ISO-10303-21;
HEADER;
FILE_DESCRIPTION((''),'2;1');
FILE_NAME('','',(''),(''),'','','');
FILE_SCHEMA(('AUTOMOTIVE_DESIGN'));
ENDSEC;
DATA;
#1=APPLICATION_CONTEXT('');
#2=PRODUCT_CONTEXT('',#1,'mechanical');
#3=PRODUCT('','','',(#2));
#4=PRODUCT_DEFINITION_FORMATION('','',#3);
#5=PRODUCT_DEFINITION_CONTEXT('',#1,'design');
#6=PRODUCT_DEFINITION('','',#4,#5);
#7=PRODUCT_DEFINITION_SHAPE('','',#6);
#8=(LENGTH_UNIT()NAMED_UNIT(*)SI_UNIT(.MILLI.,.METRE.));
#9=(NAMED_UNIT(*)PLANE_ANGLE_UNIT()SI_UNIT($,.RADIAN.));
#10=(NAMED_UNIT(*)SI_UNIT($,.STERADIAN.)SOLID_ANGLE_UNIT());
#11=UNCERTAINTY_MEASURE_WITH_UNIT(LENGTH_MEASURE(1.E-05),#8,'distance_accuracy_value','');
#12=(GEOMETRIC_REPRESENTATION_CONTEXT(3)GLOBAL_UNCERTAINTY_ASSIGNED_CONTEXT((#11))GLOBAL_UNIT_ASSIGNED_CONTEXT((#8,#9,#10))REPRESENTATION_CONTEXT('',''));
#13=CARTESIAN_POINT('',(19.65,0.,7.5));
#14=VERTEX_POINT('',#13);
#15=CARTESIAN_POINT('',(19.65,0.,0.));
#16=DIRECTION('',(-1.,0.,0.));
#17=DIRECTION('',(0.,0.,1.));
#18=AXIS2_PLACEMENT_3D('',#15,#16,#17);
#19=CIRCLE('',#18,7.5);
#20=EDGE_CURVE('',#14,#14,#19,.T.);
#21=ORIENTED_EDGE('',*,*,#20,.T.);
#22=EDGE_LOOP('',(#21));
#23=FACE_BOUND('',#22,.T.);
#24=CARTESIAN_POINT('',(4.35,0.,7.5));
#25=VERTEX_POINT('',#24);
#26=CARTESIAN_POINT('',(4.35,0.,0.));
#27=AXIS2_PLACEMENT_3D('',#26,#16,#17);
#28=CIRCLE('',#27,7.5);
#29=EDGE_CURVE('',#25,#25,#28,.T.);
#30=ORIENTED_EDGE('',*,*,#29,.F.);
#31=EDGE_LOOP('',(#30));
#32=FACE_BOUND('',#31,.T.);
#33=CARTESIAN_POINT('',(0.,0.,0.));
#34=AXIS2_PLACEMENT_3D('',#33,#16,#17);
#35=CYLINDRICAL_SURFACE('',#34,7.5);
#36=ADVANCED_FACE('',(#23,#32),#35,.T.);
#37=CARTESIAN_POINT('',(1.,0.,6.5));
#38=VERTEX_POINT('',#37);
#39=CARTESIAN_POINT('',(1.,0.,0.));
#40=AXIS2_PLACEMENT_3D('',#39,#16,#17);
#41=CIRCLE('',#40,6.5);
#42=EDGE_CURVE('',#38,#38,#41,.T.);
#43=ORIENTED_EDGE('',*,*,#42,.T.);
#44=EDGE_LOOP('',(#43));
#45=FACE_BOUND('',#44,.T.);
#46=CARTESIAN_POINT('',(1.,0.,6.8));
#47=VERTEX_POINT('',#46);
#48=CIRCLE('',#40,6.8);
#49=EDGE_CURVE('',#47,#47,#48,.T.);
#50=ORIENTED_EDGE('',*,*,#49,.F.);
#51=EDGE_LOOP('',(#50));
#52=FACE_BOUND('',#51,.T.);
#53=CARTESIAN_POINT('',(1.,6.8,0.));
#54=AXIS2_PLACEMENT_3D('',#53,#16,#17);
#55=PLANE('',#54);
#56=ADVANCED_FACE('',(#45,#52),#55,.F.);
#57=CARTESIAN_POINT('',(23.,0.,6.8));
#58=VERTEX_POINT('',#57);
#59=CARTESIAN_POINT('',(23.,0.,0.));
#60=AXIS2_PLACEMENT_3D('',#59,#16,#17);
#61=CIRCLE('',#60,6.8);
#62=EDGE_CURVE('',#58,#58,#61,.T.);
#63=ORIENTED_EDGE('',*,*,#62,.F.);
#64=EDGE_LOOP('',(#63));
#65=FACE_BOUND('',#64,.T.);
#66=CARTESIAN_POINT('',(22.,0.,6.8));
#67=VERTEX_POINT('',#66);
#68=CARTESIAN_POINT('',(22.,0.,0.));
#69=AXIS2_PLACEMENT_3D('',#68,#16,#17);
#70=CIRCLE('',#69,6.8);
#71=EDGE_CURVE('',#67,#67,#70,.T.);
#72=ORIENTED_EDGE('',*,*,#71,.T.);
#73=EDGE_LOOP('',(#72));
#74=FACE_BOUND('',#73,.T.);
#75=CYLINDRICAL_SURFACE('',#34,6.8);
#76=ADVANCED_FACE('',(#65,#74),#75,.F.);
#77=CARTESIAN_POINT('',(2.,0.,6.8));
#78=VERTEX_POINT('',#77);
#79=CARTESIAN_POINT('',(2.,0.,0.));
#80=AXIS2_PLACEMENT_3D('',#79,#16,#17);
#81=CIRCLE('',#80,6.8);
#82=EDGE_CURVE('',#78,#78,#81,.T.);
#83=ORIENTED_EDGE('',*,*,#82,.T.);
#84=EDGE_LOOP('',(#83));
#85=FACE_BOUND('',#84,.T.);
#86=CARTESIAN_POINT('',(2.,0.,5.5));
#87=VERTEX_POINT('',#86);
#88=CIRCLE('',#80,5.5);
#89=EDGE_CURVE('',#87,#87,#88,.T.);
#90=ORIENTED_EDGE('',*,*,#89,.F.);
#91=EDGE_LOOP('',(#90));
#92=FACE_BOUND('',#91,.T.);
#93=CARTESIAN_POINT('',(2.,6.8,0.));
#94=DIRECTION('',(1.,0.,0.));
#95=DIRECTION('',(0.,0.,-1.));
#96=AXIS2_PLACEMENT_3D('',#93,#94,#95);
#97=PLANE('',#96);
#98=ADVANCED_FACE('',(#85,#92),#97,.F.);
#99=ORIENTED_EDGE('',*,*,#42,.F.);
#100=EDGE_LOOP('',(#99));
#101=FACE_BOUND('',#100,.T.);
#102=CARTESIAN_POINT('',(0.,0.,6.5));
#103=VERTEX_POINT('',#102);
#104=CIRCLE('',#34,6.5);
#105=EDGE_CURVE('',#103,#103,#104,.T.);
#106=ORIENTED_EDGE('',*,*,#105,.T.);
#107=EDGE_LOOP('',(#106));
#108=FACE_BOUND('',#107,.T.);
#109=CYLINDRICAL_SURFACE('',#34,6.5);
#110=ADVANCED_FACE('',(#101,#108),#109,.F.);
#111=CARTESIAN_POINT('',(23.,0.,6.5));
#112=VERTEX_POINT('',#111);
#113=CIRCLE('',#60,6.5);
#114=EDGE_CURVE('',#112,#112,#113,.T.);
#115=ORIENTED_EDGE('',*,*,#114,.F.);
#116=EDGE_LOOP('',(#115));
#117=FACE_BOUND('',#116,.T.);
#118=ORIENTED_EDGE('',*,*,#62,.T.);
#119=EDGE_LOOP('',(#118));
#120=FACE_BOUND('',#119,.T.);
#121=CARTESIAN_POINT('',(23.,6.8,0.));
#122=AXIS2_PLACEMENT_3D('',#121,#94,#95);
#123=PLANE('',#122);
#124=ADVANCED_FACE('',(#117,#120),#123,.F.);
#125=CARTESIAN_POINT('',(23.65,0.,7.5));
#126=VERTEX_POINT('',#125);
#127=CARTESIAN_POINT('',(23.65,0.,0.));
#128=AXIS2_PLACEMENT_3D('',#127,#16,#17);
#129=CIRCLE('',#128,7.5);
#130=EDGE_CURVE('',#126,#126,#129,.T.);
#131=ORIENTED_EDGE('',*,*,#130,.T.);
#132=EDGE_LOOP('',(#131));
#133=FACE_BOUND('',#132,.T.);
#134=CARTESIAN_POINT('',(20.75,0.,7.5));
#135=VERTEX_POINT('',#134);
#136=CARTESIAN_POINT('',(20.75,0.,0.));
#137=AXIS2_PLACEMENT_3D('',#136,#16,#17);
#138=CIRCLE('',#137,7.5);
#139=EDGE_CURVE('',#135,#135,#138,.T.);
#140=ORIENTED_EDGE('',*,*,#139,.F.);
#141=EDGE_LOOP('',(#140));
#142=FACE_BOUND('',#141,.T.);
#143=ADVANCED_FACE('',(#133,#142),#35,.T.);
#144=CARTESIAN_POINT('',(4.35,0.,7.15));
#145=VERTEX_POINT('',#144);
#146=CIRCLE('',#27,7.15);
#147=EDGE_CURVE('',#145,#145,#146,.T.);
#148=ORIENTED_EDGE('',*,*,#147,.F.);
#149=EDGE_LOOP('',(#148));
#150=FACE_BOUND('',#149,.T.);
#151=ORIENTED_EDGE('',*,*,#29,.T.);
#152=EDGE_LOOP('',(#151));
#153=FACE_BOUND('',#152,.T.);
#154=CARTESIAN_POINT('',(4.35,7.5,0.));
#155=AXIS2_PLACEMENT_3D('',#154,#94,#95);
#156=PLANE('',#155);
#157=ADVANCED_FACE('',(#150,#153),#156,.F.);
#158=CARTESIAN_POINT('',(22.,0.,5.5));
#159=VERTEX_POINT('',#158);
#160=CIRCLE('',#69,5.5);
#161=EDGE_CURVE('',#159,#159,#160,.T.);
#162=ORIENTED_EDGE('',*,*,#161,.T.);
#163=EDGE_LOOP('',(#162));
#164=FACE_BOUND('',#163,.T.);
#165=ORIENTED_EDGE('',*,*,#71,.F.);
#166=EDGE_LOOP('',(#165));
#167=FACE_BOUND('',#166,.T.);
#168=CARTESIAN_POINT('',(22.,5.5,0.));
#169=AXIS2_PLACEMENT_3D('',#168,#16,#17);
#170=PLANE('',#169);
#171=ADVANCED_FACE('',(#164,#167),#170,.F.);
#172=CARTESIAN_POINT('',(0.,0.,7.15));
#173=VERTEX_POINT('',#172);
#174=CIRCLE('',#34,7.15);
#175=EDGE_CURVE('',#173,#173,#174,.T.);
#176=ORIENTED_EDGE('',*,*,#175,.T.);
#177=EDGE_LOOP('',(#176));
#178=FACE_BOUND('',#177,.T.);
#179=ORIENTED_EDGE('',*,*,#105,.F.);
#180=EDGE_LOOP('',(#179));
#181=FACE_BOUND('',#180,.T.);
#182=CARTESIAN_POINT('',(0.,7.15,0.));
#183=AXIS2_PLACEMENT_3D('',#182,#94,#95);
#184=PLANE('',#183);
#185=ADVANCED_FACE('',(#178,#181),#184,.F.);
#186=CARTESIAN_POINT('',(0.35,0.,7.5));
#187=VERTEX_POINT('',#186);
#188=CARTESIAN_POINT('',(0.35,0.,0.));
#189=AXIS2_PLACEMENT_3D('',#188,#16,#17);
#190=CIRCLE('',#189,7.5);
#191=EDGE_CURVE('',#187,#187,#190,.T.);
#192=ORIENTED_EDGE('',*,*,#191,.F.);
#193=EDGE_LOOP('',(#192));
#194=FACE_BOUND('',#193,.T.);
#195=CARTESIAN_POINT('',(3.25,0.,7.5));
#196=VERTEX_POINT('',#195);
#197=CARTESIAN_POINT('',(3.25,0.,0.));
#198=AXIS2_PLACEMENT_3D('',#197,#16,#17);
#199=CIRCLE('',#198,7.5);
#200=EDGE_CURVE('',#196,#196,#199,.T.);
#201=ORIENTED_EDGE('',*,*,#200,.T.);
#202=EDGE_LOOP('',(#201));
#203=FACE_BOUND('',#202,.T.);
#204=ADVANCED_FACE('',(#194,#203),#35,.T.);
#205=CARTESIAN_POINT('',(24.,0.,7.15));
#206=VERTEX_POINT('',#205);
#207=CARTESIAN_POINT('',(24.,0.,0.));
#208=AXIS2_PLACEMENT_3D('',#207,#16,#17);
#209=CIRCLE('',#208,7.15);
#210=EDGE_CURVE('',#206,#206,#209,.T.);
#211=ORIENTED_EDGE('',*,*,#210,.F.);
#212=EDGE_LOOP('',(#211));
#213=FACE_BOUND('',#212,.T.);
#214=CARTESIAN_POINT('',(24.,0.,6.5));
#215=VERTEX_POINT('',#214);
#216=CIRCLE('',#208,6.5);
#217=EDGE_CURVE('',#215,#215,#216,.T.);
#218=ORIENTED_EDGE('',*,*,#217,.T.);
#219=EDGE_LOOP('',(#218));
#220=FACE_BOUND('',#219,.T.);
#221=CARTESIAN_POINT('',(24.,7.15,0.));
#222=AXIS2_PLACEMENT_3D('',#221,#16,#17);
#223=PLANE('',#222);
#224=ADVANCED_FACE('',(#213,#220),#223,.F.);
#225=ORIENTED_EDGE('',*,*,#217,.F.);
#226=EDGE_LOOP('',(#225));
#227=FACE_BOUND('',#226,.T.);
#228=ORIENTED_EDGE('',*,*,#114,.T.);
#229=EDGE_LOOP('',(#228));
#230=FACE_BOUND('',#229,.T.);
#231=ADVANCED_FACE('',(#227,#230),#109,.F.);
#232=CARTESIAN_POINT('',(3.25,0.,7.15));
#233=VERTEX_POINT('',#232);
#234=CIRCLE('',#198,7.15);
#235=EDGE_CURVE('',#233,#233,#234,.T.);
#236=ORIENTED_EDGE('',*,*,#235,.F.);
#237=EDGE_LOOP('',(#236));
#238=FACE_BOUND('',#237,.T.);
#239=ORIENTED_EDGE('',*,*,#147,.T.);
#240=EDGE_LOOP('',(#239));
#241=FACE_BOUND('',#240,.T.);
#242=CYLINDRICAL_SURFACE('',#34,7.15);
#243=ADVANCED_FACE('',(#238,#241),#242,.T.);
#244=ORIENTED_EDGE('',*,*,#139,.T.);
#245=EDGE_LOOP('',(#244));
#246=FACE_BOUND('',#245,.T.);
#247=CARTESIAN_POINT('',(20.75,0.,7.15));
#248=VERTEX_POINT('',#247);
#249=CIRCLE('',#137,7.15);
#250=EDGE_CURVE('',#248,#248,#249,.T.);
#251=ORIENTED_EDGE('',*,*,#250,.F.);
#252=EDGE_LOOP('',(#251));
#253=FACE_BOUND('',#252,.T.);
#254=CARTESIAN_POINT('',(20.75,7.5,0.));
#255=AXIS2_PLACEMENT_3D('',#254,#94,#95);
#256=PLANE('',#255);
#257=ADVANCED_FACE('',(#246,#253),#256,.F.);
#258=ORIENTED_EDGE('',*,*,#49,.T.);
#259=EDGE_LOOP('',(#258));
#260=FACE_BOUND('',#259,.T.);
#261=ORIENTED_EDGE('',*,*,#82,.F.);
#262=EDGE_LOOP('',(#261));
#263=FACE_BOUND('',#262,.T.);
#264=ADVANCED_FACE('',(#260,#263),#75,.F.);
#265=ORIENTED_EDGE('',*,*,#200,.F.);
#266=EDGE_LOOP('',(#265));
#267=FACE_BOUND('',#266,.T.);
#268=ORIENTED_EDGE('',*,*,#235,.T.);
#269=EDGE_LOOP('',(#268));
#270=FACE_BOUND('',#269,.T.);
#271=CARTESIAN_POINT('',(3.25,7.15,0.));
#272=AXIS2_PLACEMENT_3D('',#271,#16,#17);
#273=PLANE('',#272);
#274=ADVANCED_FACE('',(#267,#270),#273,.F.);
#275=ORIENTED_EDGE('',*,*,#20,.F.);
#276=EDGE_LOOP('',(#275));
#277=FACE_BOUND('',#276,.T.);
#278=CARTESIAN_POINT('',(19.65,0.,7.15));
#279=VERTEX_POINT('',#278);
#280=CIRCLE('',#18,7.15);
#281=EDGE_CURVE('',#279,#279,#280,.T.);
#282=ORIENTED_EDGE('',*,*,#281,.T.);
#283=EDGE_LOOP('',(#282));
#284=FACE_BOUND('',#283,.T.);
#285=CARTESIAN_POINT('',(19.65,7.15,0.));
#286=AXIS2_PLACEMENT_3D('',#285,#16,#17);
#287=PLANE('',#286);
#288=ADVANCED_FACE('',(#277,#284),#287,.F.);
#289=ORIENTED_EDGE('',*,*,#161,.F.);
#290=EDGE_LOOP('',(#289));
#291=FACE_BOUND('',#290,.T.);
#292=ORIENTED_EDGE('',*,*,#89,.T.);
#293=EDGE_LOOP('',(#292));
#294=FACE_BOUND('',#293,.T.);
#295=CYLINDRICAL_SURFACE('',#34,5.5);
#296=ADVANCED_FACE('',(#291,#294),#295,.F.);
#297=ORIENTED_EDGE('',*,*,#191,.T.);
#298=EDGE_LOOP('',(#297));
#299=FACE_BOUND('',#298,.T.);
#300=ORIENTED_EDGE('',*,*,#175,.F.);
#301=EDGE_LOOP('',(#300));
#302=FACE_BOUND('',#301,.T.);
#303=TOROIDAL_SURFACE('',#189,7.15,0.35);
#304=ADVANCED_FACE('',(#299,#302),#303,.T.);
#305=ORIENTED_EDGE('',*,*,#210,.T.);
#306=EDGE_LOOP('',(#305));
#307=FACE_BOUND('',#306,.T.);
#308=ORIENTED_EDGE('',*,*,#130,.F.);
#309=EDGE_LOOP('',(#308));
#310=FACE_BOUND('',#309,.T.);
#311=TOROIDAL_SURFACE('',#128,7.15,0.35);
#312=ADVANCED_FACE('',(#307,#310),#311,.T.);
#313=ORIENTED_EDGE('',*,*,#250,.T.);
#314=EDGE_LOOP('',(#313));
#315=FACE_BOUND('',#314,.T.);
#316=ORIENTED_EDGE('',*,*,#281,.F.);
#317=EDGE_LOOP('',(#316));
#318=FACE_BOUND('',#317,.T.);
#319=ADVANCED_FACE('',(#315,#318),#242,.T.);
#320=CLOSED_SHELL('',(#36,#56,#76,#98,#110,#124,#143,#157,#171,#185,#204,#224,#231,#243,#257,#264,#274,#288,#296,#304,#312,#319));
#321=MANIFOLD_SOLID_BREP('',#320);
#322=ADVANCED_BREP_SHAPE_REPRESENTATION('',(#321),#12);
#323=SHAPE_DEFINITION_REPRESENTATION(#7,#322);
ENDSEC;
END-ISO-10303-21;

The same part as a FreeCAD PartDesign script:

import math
import FreeCAD as App
import Part
import Sketcher

V = App.Vector
Q = App.Units.Quantity

doc = App.newDocument("Part")
body = doc.addObject("PartDesign::Body", "Body")

# Sketch on XY plane
sketch1 = doc.addObject("Sketcher::SketchObject", "Sketch")
body.addObject(sketch1)
sketch1.AttachmentSupport = (doc.XY_Plane, [""])
sketch1.MapMode = "FlatFace"
sketch1.addGeometry([
    Part.LineSegment(V(24, 6.5, 0), V(24, 7.15, 0)),  # 0
    Part.ArcOfCircle(Part.Circle(V(23.65, 7.15, 0), V(0, 0, 1), 0.35), math.radians(0), math.radians(90)),  # 1
    Part.LineSegment(V(23.65, 7.5, 0), V(20.75, 7.5, 0)),  # 2
    Part.LineSegment(V(20.75, 7.5, 0), V(20.75, 7.15, 0)),  # 3
    Part.LineSegment(V(20.75, 7.15, 0), V(19.65, 7.15, 0)),  # 4
    Part.LineSegment(V(19.65, 7.15, 0), V(19.65, 7.5, 0)),  # 5
    Part.LineSegment(V(19.65, 7.5, 0), V(4.35, 7.5, 0)),  # 6
    Part.LineSegment(V(4.35, 7.5, 0), V(4.35, 7.15, 0)),  # 7
    Part.LineSegment(V(4.35, 7.15, 0), V(3.25, 7.15, 0)),  # 8
    Part.LineSegment(V(3.25, 7.15, 0), V(3.25, 7.5, 0)),  # 9
    Part.LineSegment(V(3.25, 7.5, 0), V(0.35, 7.5, 0)),  # 10
    Part.ArcOfCircle(Part.Circle(V(0.35, 7.15, 0), V(0, 0, 1), 0.35), math.radians(90), math.radians(180)),  # 11
    Part.LineSegment(V(0, 7.15, 0), V(0, 6.5, 0)),  # 12
    Part.LineSegment(V(0, 6.5, 0), V(1, 6.5, 0)),  # 13
    Part.LineSegment(V(1, 6.5, 0), V(1, 6.8, 0)),  # 14
    Part.LineSegment(V(1, 6.8, 0), V(2, 6.8, 0)),  # 15
    Part.LineSegment(V(2, 6.8, 0), V(2, 5.5, 0)),  # 16
    Part.LineSegment(V(2, 5.5, 0), V(22, 5.5, 0)),  # 17
    Part.LineSegment(V(22, 5.5, 0), V(22, 6.8, 0)),  # 18
    Part.LineSegment(V(22, 6.8, 0), V(23, 6.8, 0)),  # 19
    Part.LineSegment(V(23, 6.8, 0), V(23, 6.5, 0)),  # 20
    Part.LineSegment(V(23, 6.5, 0), V(24, 6.5, 0)),  # 21
], False)
sketch1.addConstraint([
    Sketcher.Constraint("Tangent", 0, 2, 1, 1),
    Sketcher.Constraint("Tangent", 1, 2, 2, 1),
    Sketcher.Constraint("Coincident", 2, 2, 3, 1),
    Sketcher.Constraint("Coincident", 3, 2, 4, 1),
    Sketcher.Constraint("Coincident", 4, 2, 5, 1),
    Sketcher.Constraint("Coincident", 5, 2, 6, 1),
    Sketcher.Constraint("Coincident", 6, 2, 7, 1),
    Sketcher.Constraint("Coincident", 7, 2, 8, 1),
    Sketcher.Constraint("Coincident", 8, 2, 9, 1),
    Sketcher.Constraint("Coincident", 9, 2, 10, 1),
    Sketcher.Constraint("Tangent", 10, 2, 11, 1),
    Sketcher.Constraint("Tangent", 11, 2, 12, 1),
    Sketcher.Constraint("Coincident", 12, 2, 13, 1),
    Sketcher.Constraint("Coincident", 13, 2, 14, 1),
    Sketcher.Constraint("Coincident", 14, 2, 15, 1),
    Sketcher.Constraint("Coincident", 15, 2, 16, 1),
    Sketcher.Constraint("Coincident", 16, 2, 17, 1),
    Sketcher.Constraint("Coincident", 17, 2, 18, 1),
    Sketcher.Constraint("Coincident", 18, 2, 19, 1),
    Sketcher.Constraint("Coincident", 19, 2, 20, 1),
    Sketcher.Constraint("Coincident", 20, 2, 21, 1),
    Sketcher.Constraint("Coincident", 21, 2, 0, 1),
    Sketcher.Constraint("Vertical", 0),
    Sketcher.Constraint("Horizontal", 2),
    Sketcher.Constraint("Vertical", 3),
    Sketcher.Constraint("Horizontal", 4),
    Sketcher.Constraint("Vertical", 5),
    Sketcher.Constraint("Horizontal", 6),
    Sketcher.Constraint("Vertical", 7),
    Sketcher.Constraint("Horizontal", 8),
    Sketcher.Constraint("Vertical", 9),
    Sketcher.Constraint("Horizontal", 10),
    Sketcher.Constraint("Vertical", 12),
    Sketcher.Constraint("Horizontal", 13),
    Sketcher.Constraint("Vertical", 14),
    Sketcher.Constraint("Horizontal", 15),
    Sketcher.Constraint("Vertical", 16),
    Sketcher.Constraint("Horizontal", 17),
    Sketcher.Constraint("Vertical", 18),
    Sketcher.Constraint("Horizontal", 19),
    Sketcher.Constraint("Vertical", 20),
    Sketcher.Constraint("Horizontal", 21),
    Sketcher.Constraint("Equal", 1, 11),
    Sketcher.Constraint("PointOnObject", 11, 2, -2),
    Sketcher.Constraint("Horizontal", 1, 3, 11, 3),
    Sketcher.Constraint("Horizontal", 0, 2, 3, 2),
    Sketcher.Constraint("Horizontal", 2, 2, 5, 2),
    Sketcher.Constraint("Horizontal", 4, 2, 7, 2),
    Sketcher.Constraint("Horizontal", 15, 2, 18, 2),
    Sketcher.Constraint("Horizontal", 13, 2, 20, 2),
    Sketcher.Constraint("Equal", 4, 8),
    Sketcher.Constraint("Equal", 2, 10),
    Sketcher.Constraint("Equal", 13, 15),
    Sketcher.Constraint("Equal", 15, 19),
    Sketcher.Constraint("Equal", 19, 21),
    Sketcher.Constraint("DistanceX", 13, 1, 13, 2, Q("1 mm")),
    Sketcher.Constraint("DistanceX", 17, 1, 17, 2, Q("20 mm")),
    Sketcher.Constraint("Radius", 1, Q("0.35 mm")),
    Sketcher.Constraint("DistanceX", 2, 2, 2, 1, Q("2.9 mm")),
    Sketcher.Constraint("DistanceX", 4, 2, 4, 1, Q("1.1 mm")),
    Sketcher.Constraint("DistanceY", 14, 1, 14, 2, Q("0.3 mm")),
    Sketcher.Constraint("DistanceY", 16, 2, 16, 1, Q("1.3 mm")),
    Sketcher.Constraint("DistanceY", 12, 2, 10, 2, Q("1 mm")),
    Sketcher.Constraint("DistanceY", -1, 1, 1, 2, Q("7.5 mm")),
])
revolution = doc.addObject("PartDesign::Revolution", "Revolution")
body.addObject(revolution)
revolution.Profile = sketch1
revolution.ReferenceAxis = (sketch1, ["H_Axis"])
revolution.Angle = 360

doc.recompute()
